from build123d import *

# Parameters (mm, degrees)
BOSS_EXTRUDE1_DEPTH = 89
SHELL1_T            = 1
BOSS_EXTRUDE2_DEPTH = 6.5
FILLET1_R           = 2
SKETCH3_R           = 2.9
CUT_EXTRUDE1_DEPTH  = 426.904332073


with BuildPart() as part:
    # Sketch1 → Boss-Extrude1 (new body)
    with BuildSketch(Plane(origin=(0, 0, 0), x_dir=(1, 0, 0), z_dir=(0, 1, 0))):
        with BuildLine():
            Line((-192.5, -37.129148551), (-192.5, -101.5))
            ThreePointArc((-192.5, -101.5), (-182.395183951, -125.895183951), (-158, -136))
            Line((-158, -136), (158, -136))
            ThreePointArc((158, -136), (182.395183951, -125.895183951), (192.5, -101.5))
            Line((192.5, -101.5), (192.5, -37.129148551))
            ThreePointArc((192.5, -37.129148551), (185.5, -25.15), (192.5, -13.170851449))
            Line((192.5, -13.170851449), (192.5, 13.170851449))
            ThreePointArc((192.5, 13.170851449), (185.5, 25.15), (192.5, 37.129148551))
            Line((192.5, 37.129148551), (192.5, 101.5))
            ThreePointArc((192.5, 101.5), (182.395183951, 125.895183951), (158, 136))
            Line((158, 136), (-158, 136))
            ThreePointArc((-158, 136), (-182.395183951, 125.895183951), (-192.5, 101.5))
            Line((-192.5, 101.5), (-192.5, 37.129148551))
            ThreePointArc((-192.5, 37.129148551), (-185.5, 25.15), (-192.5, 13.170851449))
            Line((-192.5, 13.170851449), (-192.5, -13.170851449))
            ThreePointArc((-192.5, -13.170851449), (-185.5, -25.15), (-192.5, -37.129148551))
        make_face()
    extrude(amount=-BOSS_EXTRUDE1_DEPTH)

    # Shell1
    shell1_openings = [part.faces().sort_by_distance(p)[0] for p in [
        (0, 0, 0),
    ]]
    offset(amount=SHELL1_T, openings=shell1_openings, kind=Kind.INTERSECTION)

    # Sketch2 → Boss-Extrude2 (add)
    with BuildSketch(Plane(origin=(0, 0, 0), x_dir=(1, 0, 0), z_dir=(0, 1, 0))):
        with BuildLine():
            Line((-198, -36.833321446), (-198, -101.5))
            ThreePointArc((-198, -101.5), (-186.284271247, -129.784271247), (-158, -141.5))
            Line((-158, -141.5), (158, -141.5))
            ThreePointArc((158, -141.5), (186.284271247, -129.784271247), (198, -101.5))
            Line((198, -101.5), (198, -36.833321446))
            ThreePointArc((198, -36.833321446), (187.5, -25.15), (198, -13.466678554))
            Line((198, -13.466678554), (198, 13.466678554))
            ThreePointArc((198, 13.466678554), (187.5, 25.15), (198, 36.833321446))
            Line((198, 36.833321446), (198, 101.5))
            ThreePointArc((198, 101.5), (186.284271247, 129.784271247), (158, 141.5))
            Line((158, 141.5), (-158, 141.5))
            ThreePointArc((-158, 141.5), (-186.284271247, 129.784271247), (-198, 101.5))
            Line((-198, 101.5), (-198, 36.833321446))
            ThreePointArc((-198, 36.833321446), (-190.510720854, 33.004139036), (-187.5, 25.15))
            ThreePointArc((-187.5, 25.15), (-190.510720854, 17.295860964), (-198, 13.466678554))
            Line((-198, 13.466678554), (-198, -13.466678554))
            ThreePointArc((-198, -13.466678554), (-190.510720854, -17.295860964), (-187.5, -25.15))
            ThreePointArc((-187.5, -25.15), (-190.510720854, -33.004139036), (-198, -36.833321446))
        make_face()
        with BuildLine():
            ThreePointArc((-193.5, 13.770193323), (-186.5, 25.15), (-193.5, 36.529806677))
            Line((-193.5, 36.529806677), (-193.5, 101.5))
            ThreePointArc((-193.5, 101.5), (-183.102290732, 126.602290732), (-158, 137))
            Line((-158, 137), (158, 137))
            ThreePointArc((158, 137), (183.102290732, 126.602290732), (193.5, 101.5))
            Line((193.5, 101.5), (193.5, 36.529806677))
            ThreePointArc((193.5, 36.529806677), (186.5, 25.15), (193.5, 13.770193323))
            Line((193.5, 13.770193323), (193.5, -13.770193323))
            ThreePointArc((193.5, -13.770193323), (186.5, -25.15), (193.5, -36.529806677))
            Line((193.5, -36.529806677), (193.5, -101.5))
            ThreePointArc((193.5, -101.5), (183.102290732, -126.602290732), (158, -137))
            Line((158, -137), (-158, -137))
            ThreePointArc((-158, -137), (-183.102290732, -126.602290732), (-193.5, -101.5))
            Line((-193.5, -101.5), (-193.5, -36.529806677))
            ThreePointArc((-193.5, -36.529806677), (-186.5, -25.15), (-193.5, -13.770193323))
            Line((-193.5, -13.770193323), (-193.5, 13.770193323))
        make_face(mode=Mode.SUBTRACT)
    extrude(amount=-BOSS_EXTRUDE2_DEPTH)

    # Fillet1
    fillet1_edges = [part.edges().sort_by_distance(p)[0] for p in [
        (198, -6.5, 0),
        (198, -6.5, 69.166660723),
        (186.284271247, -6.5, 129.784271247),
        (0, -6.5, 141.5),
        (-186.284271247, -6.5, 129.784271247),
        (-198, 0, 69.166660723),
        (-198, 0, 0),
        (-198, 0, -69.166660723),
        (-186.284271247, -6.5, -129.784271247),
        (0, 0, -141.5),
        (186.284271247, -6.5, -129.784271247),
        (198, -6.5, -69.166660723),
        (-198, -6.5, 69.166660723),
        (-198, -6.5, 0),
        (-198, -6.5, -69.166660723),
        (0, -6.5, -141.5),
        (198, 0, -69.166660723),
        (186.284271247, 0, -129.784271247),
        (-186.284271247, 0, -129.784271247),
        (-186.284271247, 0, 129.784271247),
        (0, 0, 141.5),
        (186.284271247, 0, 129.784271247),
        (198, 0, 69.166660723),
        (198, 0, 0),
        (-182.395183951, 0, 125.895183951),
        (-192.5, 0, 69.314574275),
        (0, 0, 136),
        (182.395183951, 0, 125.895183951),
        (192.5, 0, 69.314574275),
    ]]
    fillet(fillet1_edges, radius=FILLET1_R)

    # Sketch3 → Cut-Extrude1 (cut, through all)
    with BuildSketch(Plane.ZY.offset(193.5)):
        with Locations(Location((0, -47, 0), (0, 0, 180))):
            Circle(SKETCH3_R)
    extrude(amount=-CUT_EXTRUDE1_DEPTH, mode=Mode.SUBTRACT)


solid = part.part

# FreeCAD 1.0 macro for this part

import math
import FreeCAD as App
import Part
import Sketcher

V = App.Vector
Q = App.Units.Quantity


def edges_at(feature, points):
    """Names of the edges that pass closest to the given points."""
    edges = feature.Shape.Edges
    near = lambda p: min(range(len(edges)), key=lambda i: edges[i].distToShape(Part.Vertex(*p))[0])
    return sorted({f"Edge{near(p) + 1}" for p in points})


def faces_at(feature, points):
    """Names of the faces that lie closest to the given points."""
    faces = feature.Shape.Faces
    near = lambda p: min(range(len(faces)), key=lambda i: faces[i].distToShape(Part.Vertex(*p))[0])
    return sorted({f"Face{near(p) + 1}" for p in points})

doc = App.newDocument("Part")
body = doc.addObject("PartDesign::Body", "Body")

sketch1 = body.newObject("Sketcher::SketchObject", "Sketch")
sketch1.AttachmentSupport = (doc.getObject("XZ_Plane"), [""])
sketch1.MapMode = "FlatFace"
sketch1.addGeometry([
    Part.LineSegment(V(-192, 37, 0), V(-192, 102, 0)),
    Part.ArcOfCircle(Part.Circle(V(-158, 102, 0), V(0, 0, 1), 34), math.radians(90), math.radians(180)),
    Part.LineSegment(V(-158, 136, 0), V(158, 136, 0)),
    Part.ArcOfCircle(Part.Circle(V(158, 102, 0), V(0, 0, 1), 34), math.radians(0), math.radians(90)),
    Part.LineSegment(V(192, 102, 0), V(192, 37, 0)),
    Part.ArcOfCircle(Part.Circle(V(199, 25, 0), V(0, 0, 1), 14), math.radians(119), math.radians(241)),
    Part.LineSegment(V(192, 13, 0), V(192, -13, 0)),
    Part.ArcOfCircle(Part.Circle(V(199, -25, 0), V(0, 0, 1), 14), math.radians(119), math.radians(241)),
    Part.LineSegment(V(192, -37, 0), V(192, -102, 0)),
    Part.ArcOfCircle(Part.Circle(V(158, -102, 0), V(0, 0, 1), 34), math.radians(-90), math.radians(0)),
    Part.LineSegment(V(158, -136, 0), V(-158, -136, 0)),
    Part.ArcOfCircle(Part.Circle(V(-158, -102, 0), V(0, 0, 1), 34), math.radians(180), math.radians(270)),
    Part.LineSegment(V(-192, -102, 0), V(-192, -37, 0)),
    Part.ArcOfCircle(Part.Circle(V(-199, -25, 0), V(0, 0, 1), 14), math.radians(-61), math.radians(61)),
    Part.LineSegment(V(-192, -13, 0), V(-192, 13, 0)),
    Part.ArcOfCircle(Part.Circle(V(-199, 25, 0), V(0, 0, 1), 14), math.radians(-61), math.radians(61)),
], False)
sketch1.addConstraint([
    Sketcher.Constraint("Tangent", 0, 2, 1, 2),
    Sketcher.Constraint("Tangent", 1, 1, 2, 1),
    Sketcher.Constraint("Tangent", 2, 2, 3, 2),
    Sketcher.Constraint("Tangent", 3, 1, 4, 1),
    Sketcher.Constraint("Coincident", 4, 2, 5, 1),
    Sketcher.Constraint("Coincident", 5, 2, 6, 1),
    Sketcher.Constraint("Coincident", 6, 2, 7, 1),
    Sketcher.Constraint("Coincident", 7, 2, 8, 1),
    Sketcher.Constraint("Tangent", 8, 2, 9, 2),
    Sketcher.Constraint("Tangent", 9, 1, 10, 1),
    Sketcher.Constraint("Tangent", 10, 2, 11, 2),
    Sketcher.Constraint("Tangent", 11, 1, 12, 1),
    Sketcher.Constraint("Coincident", 12, 2, 13, 1),
    Sketcher.Constraint("Coincident", 13, 2, 14, 1),
    Sketcher.Constraint("Coincident", 14, 2, 15, 1),
    Sketcher.Constraint("Coincident", 15, 2, 0, 1),
    Sketcher.Constraint("Vertical", 0),
    Sketcher.Constraint("Horizontal", 2),
    Sketcher.Constraint("Vertical", 4),
    Sketcher.Constraint("Vertical", 6),
    Sketcher.Constraint("Vertical", 8),
    Sketcher.Constraint("Horizontal", 10),
    Sketcher.Constraint("Vertical", 12),
    Sketcher.Constraint("Vertical", 14),
    Sketcher.Constraint("Equal", 1, 3),
    Sketcher.Constraint("Equal", 5, 7),
    Sketcher.Constraint("Equal", 3, 9),
    Sketcher.Constraint("Equal", 9, 11),
    Sketcher.Constraint("Equal", 7, 13),
    Sketcher.Constraint("Equal", 13, 15),
    Sketcher.Constraint("Symmetric", 1, 3, 9, 3, -1, 1),
    Sketcher.Constraint("Symmetric", 5, 3, 13, 3, -1, 1),
    Sketcher.Constraint("Symmetric", 7, 3, 15, 3, -1, 1),
    Sketcher.Constraint("Symmetric", 7, 3, 13, 3, -2),
    Sketcher.Constraint("Horizontal", 7, 2, 12, 2),
    Sketcher.Constraint("Horizontal", 6, 2, 13, 2),
    Sketcher.Constraint("Horizontal", 4, 2, 15, 2),
    Sketcher.Constraint("Vertical", 4, 2, 5, 2),
    Sketcher.Constraint("Radius", 1, Q("34.5 mm")),
    Sketcher.Constraint("DistanceX", 2, 1, 2, 2, Q("316 mm")),
    Sketcher.Constraint("Radius", 5, Q("13.75 mm")),
    Sketcher.Constraint("DistanceY", -1, 1, 1, 1, Q("136 mm")),
    Sketcher.Constraint("DistanceY", 7, 3, 5, 3, Q("50.3 mm")),
    Sketcher.Constraint("DistanceX", 13, 3, 7, 3, Q("398.5 mm")),
])
pad1 = body.newObject("PartDesign::Pad", "Pad")
pad1.Profile = sketch1
pad1.Length = 89
doc.recompute()

thickness = body.newObject("PartDesign::Thickness", "Thickness")
thickness.Base = (pad1, faces_at(pad1, [(0, 0, 0)]))
thickness.Value = 1
thickness.Reversed = False
thickness.Join = "Intersection"

sketch2 = body.newObject("Sketcher::SketchObject", "Sketch001")
sketch2.AttachmentSupport = (doc.getObject("XZ_Plane"), [""])
sketch2.MapMode = "FlatFace"
sketch2.addGeometry([
    Part.LineSegment(V(-198, 37, 0), V(-198, 102, 0)),
    Part.ArcOfCircle(Part.Circle(V(-158, 101, 0), V(0, 0, 1), 40), math.radians(90), math.radians(180)),
    Part.LineSegment(V(-158, 142, 0), V(158, 142, 0)),
    Part.ArcOfCircle(Part.Circle(V(158, 101, 0), V(0, 0, 1), 40), math.radians(0), math.radians(90)),
    Part.LineSegment(V(198, 102, 0), V(198, 37, 0)),
    Part.ArcOfCircle(Part.Circle(V(199, 25, 0), V(0, 0, 1), 12), math.radians(96), math.radians(264)),
    Part.LineSegment(V(198, 13, 0), V(198, -13, 0)),
    Part.ArcOfCircle(Part.Circle(V(199, -25, 0), V(0, 0, 1), 12), math.radians(96), math.radians(264)),
    Part.LineSegment(V(198, -37, 0), V(198, -102, 0)),
    Part.ArcOfCircle(Part.Circle(V(158, -101, 0), V(0, 0, 1), 40), math.radians(-90), math.radians(0)),
    Part.LineSegment(V(158, -142, 0), V(-158, -142, 0)),
    Part.ArcOfCircle(Part.Circle(V(-158, -101, 0), V(0, 0, 1), 40), math.radians(-180), math.radians(-90)),
    Part.LineSegment(V(-198, -102, 0), V(-198, -37, 0)),
    Part.ArcOfCircle(Part.Circle(V(-199, -25, 0), V(0, 0, 1), 12), math.radians(-84), math.radians(0)),
    Part.ArcOfCircle(Part.Circle(V(-199, -25, 0), V(0, 0, 1), 12), math.radians(0), math.radians(84)),
    Part.LineSegment(V(-198, -13, 0), V(-198, 13, 0)),
    Part.ArcOfCircle(Part.Circle(V(-199, 25, 0), V(0, 0, 1), 12), math.radians(-84), math.radians(0)),
    Part.ArcOfCircle(Part.Circle(V(-199, 25, 0), V(0, 0, 1), 12), math.radians(0), math.radians(84)),
    Part.LineSegment(V(-194, 14, 0), V(-194, -14, 0)),
    Part.ArcOfCircle(Part.Circle(V(-199, -25, 0), V(0, 0, 1), 13), math.radians(-63), math.radians(63)),
    Part.LineSegment(V(-194, -37, 0), V(-194, -102, 0)),
    Part.ArcOfCircle(Part.Circle(V(-158, -102, 0), V(0, 0, 1), 36), math.radians(180), math.radians(270)),
    Part.LineSegment(V(-158, -137, 0), V(158, -137, 0)),
    Part.ArcOfCircle(Part.Circle(V(158, -102, 0), V(0, 0, 1), 36), math.radians(-90), math.radians(0)),
    Part.LineSegment(V(194, -102, 0), V(194, -37, 0)),
    Part.ArcOfCircle(Part.Circle(V(199, -25, 0), V(0, 0, 1), 13), math.radians(117), math.radians(243)),
    Part.LineSegment(V(194, -14, 0), V(194, 14, 0)),
    Part.ArcOfCircle(Part.Circle(V(199, 25, 0), V(0, 0, 1), 13), math.radians(117), math.radians(243)),
    Part.LineSegment(V(194, 37, 0), V(194, 102, 0)),
    Part.ArcOfCircle(Part.Circle(V(158, 102, 0), V(0, 0, 1), 36), math.radians(0), math.radians(90)),
    Part.LineSegment(V(158, 137, 0), V(-158, 137, 0)),
    Part.ArcOfCircle(Part.Circle(V(-158, 102, 0), V(0, 0, 1), 36), math.radians(90), math.radians(180)),
    Part.LineSegment(V(-194, 102, 0), V(-194, 37, 0)),
    Part.ArcOfCircle(Part.Circle(V(-199, 25, 0), V(0, 0, 1), 13), math.radians(-63), math.radians(63)),
], False)
sketch2.addConstraint([
    Sketcher.Constraint("Tangent", 0, 2, 1, 2),
    Sketcher.Constraint("Tangent", 1, 1, 2, 1),
    Sketcher.Constraint("Tangent", 2, 2, 3, 2),
    Sketcher.Constraint("Tangent", 3, 1, 4, 1),
    Sketcher.Constraint("Coincident", 4, 2, 5, 1),
    Sketcher.Constraint("Coincident", 5, 2, 6, 1),
    Sketcher.Constraint("Coincident", 6, 2, 7, 1),
    Sketcher.Constraint("Coincident", 7, 2, 8, 1),
    Sketcher.Constraint("Tangent", 8, 2, 9, 2),
    Sketcher.Constraint("Tangent", 9, 1, 10, 1),
    Sketcher.Constraint("Tangent", 10, 2, 11, 2),
    Sketcher.Constraint("Tangent", 11, 1, 12, 1),
    Sketcher.Constraint("Coincident", 12, 2, 13, 1),
    Sketcher.Constraint("Tangent", 13, 2, 14, 1),
    Sketcher.Constraint("Coincident", 14, 2, 15, 1),
    Sketcher.Constraint("Coincident", 15, 2, 16, 1),
    Sketcher.Constraint("Tangent", 16, 2, 17, 1),
    Sketcher.Constraint("Coincident", 17, 2, 0, 1),
    Sketcher.Constraint("Coincident", 18, 2, 19, 2),
    Sketcher.Constraint("Coincident", 19, 1, 20, 1),
    Sketcher.Constraint("Tangent", 20, 2, 21, 1),
    Sketcher.Constraint("Tangent", 21, 2, 22, 1),
    Sketcher.Constraint("Tangent", 22, 2, 23, 1),
    Sketcher.Constraint("Tangent", 23, 2, 24, 1),
    Sketcher.Constraint("Coincident", 24, 2, 25, 2),
    Sketcher.Constraint("Coincident", 25, 1, 26, 1),
    Sketcher.Constraint("Coincident", 26, 2, 27, 2),
    Sketcher.Constraint("Coincident", 27, 1, 28, 1),
    Sketcher.Constraint("Tangent", 28, 2, 29, 1),
    Sketcher.Constraint("Tangent", 29, 2, 30, 1),
    Sketcher.Constraint("Tangent", 30, 2, 31, 1),
    Sketcher.Constraint("Tangent", 31, 2, 32, 1),
    Sketcher.Constraint("Coincident", 32, 2, 33, 2),
    Sketcher.Constraint("Coincident", 33, 1, 18, 1),
    Sketcher.Constraint("Vertical", 0),
    Sketcher.Constraint("Horizontal", 2),
    Sketcher.Constraint("Vertical", 4),
    Sketcher.Constraint("Vertical", 6),
    Sketcher.Constraint("Vertical", 8),
    Sketcher.Constraint("Horizontal", 10),
    Sketcher.Constraint("Vertical", 12),
    Sketcher.Constraint("Vertical", 15),
    Sketcher.Constraint("Vertical", 18),
    Sketcher.Constraint("Vertical", 20),
    Sketcher.Constraint("Horizontal", 22),
    Sketcher.Constraint("Vertical", 24),
    Sketcher.Constraint("Vertical", 26),
    Sketcher.Constraint("Vertical", 28),
    Sketcher.Constraint("Horizontal", 30),
    Sketcher.Constraint("Vertical", 32),
    Sketcher.Constraint("Coincident", 19, 3, 13, 3),
    Sketcher.Constraint("Coincident", 21, 3, 11, 3),
    Sketcher.Constraint("Coincident", 23, 3, 9, 3),
    Sketcher.Constraint("Coincident", 25, 3, 7, 3),
    Sketcher.Constraint("Coincident", 27, 3, 5, 3),
    Sketcher.Constraint("Coincident", 29, 3, 3, 3),
    Sketcher.Constraint("Coincident", 31, 3, 1, 3),
    Sketcher.Constraint("Coincident", 33, 3, 16, 3),
    Sketcher.Constraint("Equal", 1, 3),
    Sketcher.Constraint("Equal", 5, 7),
    Sketcher.Constraint("Equal", 3, 9),
    Sketcher.Constraint("Equal", 9, 11),
    Sketcher.Constraint("Equal", 7, 13),
    Sketcher.Constraint("Equal", 13, 14),
    Sketcher.Constraint("Equal", 14, 16),
    Sketcher.Constraint("Equal", 16, 17),
    Sketcher.Constraint("Equal", 19, 25),
    Sketcher.Constraint("Equal", 25, 27),
    Sketcher.Constraint("Equal", 23, 29),
    Sketcher.Constraint("Equal", 27, 33),
    Sketcher.Constraint("Symmetric", 1, 3, 9, 3, -1, 1),
    Sketcher.Constraint("Symmetric", 5, 3, 13, 3, -1, 1),
    Sketcher.Constraint("Symmetric", 7, 3, 16, 3, -1, 1),
    Sketcher.Constraint("Symmetric", 7, 3, 13, 3, -2),
    Sketcher.Constraint("Horizontal", 7, 2, 12, 2),
    Sketcher.Constraint("Horizontal", 25, 3, 13, 2),
    Sketcher.Constraint("Horizontal", 6, 2, 14, 2),
    Sketcher.Constraint("Horizontal", 33, 3, 16, 2),
    Sketcher.Constraint("Horizontal", 4, 2, 17, 2),
    Sketcher.Constraint("Horizontal", 18, 2, 25, 1),
    Sketcher.Constraint("Vertical", 4, 2, 5, 2),
    Sketcher.Constraint("Vertical", 18, 2, 19, 1),
    Sketcher.Constraint("Radius", 1, Q("40 mm")),
    Sketcher.Constraint("Radius", 21, Q("35.5 mm")),
    Sketcher.Constraint("DistanceX", 2, 1, 2, 2, Q("316 mm")),
    Sketcher.Constraint("Radius", 5, Q("11.75 mm")),
    Sketcher.Constraint("Radius", 19, Q("12.75 mm")),
    Sketcher.Constraint("DistanceY", 21, 2, -1, 1, Q("137 mm")),
    Sketcher.Constraint("DistanceX", 18, 2, 13, 2, Q("6 mm")),
    Sketcher.Constraint("DistanceY", 7, 3, 5, 3, Q("50.3 mm")),
])
pad2 = body.newObject("PartDesign::Pad", "Pad001")
pad2.Profile = sketch2
pad2.Length = 6.5
doc.recompute()

fillet = body.newObject("PartDesign::Fillet", "Fillet")
fillet.Base = (pad2, edges_at(pad2, [
    (198, -6.5, 0),
    (198, -6.5, 69.167),
    (186.284, -6.5, 129.784),
    (0, -6.5, 141.5),
    (-186.284, -6.5, 129.784),
    (-198, 0, 69.167),
    (-198, 0, 0),
    (-198, 0, -69.167),
    (-186.284, -6.5, -129.784),
    (0, 0, -141.5),
    (186.284, -6.5, -129.784),
    (198, -6.5, -69.167),
    (-198, -6.5, 69.167),
    (-198, -6.5, 0),
    (-198, -6.5, -69.167),
    (0, -6.5, -141.5),
    (198, 0, -69.167),
    (186.284, 0, -129.784),
    (-186.284, 0, -129.784),
    (-186.284, 0, 129.784),
    (0, 0, 141.5),
    (186.284, 0, 129.784),
    (198, 0, 69.167),
    (198, 0, 0),
    (-182.395, 0, 125.895),
    (-192.5, 0, 69.315),
    (0, 0, 136),
    (182.395, 0, 125.895),
    (192.5, 0, 69.315),
]))
fillet.Radius = 2

sketch3 = body.newObject("Sketcher::SketchObject", "Sketch002")
sketch3.AttachmentSupport = (doc.getObject("YZ_Plane"), [""])
sketch3.MapMode = "FlatFace"
sketch3.AttachmentOffset = App.Placement(V(0, 0, -193.5), App.Rotation())
sketch3.addGeometry(Part.Circle(V(-47, 0, 0), V(0, 0, 1), 2.9), False)
sketch3.addConstraint([
    Sketcher.Constraint("PointOnObject", 0, 3, -1),
    Sketcher.Constraint("Diameter", 0, Q("5.8 mm")),
    Sketcher.Constraint("DistanceX", 0, 3, -1, 1, Q("47 mm")),
])
pocket1 = body.newObject("PartDesign::Pocket", "Pocket")
pocket1.Profile = sketch3
pocket1.Type = "ThroughAll"
pocket1.Reversed = True

doc.recompute()
